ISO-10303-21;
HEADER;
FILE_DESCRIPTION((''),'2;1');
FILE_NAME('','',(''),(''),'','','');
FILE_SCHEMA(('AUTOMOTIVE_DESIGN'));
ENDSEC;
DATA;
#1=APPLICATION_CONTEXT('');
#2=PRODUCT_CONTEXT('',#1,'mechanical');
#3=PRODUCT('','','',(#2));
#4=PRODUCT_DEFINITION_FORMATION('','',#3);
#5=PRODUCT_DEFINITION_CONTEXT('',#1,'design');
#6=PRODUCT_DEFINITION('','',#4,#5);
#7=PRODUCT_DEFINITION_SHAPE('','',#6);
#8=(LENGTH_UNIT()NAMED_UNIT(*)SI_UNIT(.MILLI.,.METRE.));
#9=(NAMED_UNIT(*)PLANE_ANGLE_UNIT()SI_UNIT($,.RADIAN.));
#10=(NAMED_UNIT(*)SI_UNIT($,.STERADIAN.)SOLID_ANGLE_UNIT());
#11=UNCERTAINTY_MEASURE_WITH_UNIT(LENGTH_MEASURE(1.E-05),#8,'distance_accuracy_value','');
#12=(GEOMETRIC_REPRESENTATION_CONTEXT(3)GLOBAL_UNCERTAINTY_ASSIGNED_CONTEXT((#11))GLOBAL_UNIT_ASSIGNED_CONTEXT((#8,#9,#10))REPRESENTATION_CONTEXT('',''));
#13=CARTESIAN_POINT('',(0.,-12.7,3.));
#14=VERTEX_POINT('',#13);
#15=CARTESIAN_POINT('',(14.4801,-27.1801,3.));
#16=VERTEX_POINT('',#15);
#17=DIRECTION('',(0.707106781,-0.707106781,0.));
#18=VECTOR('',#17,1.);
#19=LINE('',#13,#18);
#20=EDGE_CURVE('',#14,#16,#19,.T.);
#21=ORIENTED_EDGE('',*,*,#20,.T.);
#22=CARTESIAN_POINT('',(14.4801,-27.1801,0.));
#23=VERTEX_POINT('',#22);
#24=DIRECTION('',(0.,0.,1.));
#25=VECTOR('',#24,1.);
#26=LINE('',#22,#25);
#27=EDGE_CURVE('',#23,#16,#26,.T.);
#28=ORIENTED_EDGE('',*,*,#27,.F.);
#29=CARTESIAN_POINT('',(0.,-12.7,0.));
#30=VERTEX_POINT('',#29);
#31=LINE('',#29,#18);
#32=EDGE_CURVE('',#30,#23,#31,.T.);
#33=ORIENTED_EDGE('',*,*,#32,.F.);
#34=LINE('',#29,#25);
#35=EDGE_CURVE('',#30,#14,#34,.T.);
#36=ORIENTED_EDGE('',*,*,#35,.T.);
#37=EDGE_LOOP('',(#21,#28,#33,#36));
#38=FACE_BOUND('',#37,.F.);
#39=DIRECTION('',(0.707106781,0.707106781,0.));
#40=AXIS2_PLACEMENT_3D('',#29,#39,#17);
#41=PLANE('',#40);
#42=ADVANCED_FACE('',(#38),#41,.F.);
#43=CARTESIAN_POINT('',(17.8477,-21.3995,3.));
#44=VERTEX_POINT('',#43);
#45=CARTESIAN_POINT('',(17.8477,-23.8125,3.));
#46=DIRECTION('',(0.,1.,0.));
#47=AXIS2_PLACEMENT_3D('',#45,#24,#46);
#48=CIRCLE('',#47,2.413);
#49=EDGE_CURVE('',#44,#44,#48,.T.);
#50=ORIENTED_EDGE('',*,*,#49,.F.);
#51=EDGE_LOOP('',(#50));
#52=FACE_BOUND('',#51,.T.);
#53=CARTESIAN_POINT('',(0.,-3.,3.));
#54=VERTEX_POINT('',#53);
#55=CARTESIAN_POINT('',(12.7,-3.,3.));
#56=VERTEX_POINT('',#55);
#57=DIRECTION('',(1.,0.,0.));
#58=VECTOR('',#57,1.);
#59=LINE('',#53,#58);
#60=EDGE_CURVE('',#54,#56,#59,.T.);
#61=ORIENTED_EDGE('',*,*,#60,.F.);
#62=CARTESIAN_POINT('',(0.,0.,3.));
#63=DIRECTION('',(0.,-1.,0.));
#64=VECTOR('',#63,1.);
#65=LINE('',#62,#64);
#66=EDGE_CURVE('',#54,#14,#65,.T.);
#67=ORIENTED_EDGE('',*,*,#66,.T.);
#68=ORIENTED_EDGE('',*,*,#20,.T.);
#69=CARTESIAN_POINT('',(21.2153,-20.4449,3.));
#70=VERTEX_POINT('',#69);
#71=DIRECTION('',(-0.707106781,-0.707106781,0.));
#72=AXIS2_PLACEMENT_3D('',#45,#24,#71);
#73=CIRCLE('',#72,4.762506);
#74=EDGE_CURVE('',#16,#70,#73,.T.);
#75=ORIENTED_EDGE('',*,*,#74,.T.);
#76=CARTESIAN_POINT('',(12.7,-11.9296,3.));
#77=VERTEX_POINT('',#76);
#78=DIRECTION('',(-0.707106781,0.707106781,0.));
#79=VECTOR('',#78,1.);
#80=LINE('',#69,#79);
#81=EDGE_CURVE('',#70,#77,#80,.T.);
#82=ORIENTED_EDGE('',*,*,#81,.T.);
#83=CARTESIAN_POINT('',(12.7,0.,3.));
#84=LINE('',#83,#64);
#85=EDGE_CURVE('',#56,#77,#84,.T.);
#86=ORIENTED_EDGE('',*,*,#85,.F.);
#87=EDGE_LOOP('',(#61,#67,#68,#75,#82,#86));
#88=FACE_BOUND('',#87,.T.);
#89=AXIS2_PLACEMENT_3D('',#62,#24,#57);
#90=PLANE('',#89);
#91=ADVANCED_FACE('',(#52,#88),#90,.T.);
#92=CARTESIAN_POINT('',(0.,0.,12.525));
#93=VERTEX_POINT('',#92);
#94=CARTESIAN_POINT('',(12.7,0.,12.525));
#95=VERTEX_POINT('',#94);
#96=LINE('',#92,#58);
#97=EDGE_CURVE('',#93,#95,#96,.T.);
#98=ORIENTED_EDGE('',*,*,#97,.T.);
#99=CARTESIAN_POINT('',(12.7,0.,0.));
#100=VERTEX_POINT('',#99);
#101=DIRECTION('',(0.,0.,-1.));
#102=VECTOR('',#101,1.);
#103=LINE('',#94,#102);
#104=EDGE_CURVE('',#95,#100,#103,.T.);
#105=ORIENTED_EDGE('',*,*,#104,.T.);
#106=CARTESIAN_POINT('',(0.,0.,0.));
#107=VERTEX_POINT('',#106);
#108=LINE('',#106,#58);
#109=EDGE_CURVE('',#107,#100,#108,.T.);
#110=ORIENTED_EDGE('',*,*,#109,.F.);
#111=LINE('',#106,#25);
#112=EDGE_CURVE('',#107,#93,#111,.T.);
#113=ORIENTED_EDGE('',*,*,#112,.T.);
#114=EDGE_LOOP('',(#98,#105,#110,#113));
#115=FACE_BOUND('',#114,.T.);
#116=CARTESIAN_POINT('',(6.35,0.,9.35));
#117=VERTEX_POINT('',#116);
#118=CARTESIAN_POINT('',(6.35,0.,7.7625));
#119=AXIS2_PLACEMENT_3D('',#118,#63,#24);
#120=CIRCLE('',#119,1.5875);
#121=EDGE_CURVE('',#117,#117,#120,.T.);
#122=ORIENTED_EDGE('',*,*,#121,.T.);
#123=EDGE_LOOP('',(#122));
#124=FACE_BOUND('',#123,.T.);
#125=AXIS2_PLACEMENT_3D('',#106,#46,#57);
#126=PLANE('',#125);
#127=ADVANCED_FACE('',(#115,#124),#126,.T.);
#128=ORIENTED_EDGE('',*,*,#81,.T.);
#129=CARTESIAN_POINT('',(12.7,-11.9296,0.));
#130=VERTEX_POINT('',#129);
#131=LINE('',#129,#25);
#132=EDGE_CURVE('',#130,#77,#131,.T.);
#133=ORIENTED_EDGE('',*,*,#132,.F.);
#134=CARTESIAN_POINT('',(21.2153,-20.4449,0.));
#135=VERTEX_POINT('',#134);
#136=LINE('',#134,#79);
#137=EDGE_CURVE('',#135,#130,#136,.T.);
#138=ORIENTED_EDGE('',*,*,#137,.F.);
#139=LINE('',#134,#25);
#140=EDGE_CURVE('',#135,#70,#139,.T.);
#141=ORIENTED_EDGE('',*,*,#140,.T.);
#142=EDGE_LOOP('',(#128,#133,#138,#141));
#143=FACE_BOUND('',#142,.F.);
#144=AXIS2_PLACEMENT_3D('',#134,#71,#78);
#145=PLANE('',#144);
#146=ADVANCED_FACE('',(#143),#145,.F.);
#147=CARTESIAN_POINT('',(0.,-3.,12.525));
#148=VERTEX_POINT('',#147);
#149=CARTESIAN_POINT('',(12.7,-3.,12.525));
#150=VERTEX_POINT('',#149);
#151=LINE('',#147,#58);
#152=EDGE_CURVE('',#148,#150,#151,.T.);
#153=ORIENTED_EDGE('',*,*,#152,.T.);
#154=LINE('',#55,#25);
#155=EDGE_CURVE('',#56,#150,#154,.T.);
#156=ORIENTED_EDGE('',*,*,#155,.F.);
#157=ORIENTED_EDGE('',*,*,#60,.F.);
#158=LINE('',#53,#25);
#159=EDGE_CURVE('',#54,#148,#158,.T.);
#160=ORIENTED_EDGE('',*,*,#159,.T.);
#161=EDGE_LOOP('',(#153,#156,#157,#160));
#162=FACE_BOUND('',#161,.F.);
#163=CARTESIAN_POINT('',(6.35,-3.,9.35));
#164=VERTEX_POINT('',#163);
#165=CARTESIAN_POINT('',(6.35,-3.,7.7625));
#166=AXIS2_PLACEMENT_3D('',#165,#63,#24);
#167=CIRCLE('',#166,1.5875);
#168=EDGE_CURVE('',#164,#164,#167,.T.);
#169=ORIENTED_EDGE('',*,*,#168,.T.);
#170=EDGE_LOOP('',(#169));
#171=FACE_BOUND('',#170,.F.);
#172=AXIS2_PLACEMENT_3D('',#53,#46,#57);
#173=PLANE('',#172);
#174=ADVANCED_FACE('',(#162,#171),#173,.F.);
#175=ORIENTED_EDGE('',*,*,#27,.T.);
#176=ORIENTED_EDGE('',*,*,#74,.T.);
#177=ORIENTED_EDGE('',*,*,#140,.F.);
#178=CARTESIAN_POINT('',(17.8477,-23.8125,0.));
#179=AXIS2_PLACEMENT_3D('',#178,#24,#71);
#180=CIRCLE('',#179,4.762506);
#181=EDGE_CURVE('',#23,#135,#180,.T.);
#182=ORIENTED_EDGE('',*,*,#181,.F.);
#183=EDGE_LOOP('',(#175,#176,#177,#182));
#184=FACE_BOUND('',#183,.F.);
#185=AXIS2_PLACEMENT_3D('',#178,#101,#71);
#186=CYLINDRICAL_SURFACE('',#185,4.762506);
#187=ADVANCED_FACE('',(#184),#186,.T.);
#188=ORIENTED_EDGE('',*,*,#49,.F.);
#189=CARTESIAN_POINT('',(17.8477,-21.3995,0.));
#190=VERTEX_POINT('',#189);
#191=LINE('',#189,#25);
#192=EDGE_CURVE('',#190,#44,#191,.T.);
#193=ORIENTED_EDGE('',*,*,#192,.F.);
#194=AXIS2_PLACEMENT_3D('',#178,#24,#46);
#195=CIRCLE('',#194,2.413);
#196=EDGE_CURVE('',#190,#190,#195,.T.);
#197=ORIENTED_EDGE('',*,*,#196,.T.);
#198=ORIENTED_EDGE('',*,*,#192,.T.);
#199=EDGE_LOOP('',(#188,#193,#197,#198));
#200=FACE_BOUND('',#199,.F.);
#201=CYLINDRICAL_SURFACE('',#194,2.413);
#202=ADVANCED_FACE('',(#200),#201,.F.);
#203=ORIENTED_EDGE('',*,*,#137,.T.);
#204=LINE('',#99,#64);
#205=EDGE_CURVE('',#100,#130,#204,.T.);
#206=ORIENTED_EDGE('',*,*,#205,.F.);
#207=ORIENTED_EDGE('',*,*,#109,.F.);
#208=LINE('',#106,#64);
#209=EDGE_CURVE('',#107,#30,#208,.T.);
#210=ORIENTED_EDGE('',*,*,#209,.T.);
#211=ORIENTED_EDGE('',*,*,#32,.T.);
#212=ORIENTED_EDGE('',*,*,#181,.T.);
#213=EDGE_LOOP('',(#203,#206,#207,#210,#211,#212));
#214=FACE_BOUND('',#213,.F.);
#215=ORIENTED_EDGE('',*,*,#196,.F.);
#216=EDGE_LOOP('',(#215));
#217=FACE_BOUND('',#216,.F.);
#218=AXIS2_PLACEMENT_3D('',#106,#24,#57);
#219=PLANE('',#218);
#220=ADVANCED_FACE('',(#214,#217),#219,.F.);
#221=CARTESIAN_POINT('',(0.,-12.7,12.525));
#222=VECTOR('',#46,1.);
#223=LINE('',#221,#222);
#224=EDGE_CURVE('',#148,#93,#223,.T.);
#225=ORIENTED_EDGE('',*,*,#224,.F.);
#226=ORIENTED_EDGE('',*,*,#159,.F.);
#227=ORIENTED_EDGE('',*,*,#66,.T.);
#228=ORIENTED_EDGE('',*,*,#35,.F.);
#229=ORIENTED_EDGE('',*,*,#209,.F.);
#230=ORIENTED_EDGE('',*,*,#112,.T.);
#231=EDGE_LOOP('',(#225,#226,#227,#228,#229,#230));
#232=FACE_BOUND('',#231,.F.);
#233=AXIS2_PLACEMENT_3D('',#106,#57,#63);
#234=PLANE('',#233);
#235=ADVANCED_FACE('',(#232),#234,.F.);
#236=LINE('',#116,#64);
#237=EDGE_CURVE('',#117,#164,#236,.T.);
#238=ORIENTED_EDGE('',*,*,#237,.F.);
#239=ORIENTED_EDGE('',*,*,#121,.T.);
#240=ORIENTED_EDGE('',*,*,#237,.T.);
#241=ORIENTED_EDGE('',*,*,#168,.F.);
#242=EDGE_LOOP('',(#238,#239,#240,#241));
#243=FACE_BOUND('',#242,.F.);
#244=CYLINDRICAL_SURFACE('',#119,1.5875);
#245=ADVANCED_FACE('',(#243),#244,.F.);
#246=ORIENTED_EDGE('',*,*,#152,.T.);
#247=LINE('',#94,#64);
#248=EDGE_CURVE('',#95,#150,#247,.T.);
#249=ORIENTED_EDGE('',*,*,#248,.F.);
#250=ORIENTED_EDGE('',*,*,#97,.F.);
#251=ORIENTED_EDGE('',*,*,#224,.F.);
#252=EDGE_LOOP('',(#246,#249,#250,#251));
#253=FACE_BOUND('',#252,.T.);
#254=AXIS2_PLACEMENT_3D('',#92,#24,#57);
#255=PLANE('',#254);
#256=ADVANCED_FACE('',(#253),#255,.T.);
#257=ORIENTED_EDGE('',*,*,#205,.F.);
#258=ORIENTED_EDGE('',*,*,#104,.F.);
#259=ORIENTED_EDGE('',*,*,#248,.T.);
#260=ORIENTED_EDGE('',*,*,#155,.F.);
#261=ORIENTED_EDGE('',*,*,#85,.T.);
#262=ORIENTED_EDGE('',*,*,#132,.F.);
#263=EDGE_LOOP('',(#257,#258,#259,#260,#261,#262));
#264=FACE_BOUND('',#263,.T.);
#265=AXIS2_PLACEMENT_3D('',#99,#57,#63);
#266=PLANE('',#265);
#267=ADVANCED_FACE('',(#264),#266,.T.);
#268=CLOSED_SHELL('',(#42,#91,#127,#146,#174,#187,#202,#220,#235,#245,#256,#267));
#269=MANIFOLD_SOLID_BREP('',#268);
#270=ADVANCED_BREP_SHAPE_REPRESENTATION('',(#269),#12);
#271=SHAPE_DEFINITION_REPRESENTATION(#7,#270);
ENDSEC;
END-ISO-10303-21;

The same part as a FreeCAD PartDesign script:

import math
import FreeCAD as App
import Part
import Sketcher
from FreeCAD import Vector
Q = App.Units.Quantity

doc = App.newDocument("Part")
params = doc.addObject("Spreadsheet::Sheet", "Params")
for row, (alias, value) in enumerate([
    ("sketch1_width", "0.5 in"),
    ("sketch1_radius", "0.1875 in"),
    ("pad1_length", "0.1181102 in"),
    ("sketch2_width", "0.5 in"),
    ("pad2_length", "0.375 in"),
    ("sketch3_diameter", "0.125 in"),
    ("hole_diameter", "0.125 in"),
    ("sketch4_diameter", "0.19 in"),
    ("hole2_diameter", "0.19 in"),
], start=1):
    params.set(f"A{row}", alias)
    params.set(f"B{row}", "=" + value)
    params.setAlias(f"B{row}", alias)

body = doc.addObject("PartDesign::Body", "Body")

# Sketch on XY plane
sketch1 = body.newObject("Sketcher::SketchObject", "Sketch")
sketch1.AttachmentSupport = (doc.getObject("XY_Plane"), [""])
sketch1.MapMode = "FlatFace"
sketch1.addGeometry([
    Part.LineSegment(Vector(12.7, 0, 0), Vector(0, 0, 0)),  # 0
    Part.LineSegment(Vector(0, 0, 0), Vector(0, -12.7, 0)),  # 1
    Part.LineSegment(Vector(0, -12.7, 0), Vector(14.5, -27.2, 0)),  # 2
    Part.ArcOfCircle(Part.Circle(Vector(17.8, -23.8, 0), Vector(0, 0, 1), 4.8), math.radians(-135), math.radians(45)),  # 3
    Part.LineSegment(Vector(21.2, -20.4, 0), Vector(12.7, -11.9, 0)),  # 4
    Part.LineSegment(Vector(12.7, -11.9, 0), Vector(12.7, 0, 0)),  # 5
], False)
sketch1.addConstraint([
    Sketcher.Constraint("Coincident", 0, 2, 1, 1),
    Sketcher.Constraint("Coincident", 1, 2, 2, 1),
    Sketcher.Constraint("Tangent", 2, 2, 3, 1),
    Sketcher.Constraint("Tangent", 3, 2, 4, 1),
    Sketcher.Constraint("Coincident", 4, 2, 5, 1),
    Sketcher.Constraint("Coincident", 5, 2, 0, 1),
    Sketcher.Constraint("Horizontal", 0),
    Sketcher.Constraint("Vertical", 1),
    Sketcher.Constraint("Vertical", 5),
    Sketcher.Constraint("Coincident", 0, 2, -1, 1),
    Sketcher.Constraint("Parallel", 2, 4),
    Sketcher.Constraint("Equal", 0, 1),
    Sketcher.Constraint("DistanceX", 0, 2, 0, 1, Q("0.5 in")),
    Sketcher.Constraint("Angle", 2, Q("-45 deg")),
    Sketcher.Constraint("Radius", 3, Q("0.1875 in")),
    Sketcher.Constraint("DistanceY", 3, 3, -1, 1, Q("0.9375 in")),
])
sketch1.setExpression("Constraints[12]", "Params.sketch1_width")
sketch1.setExpression("Constraints[14]", "Params.sketch1_radius")
pad1 = body.newObject("PartDesign::Pad", "Pad")
pad1.Profile = sketch1
pad1.setExpression("Length", "Params.pad1_length")

# Sketch on XY plane
sketch2 = body.newObject("Sketcher::SketchObject", "Sketch001")
sketch2.AttachmentSupport = (doc.getObject("XY_Plane"), [""])
sketch2.MapMode = "FlatFace"
sketch2.AttachmentOffset = App.Placement(Vector(0, 0, 0.1181102 * 25.4), App.Rotation())
sketch2.addGeometry([
    Part.LineSegment(Vector(12.7, -3, 0), Vector(12.7, 0, 0)),
    Part.LineSegment(Vector(12.7, 0, 0), Vector(0, 0, 0)),
    Part.LineSegment(Vector(0, 0, 0), Vector(0, -3, 0)),
    Part.LineSegment(Vector(0, -3, 0), Vector(12.7, -3, 0)),
], False)
sketch2.addConstraint([
    Sketcher.Constraint("Coincident", 0, 2, 1, 1),
    Sketcher.Constraint("Coincident", 1, 2, 2, 1),
    Sketcher.Constraint("Coincident", 2, 2, 3, 1),
    Sketcher.Constraint("Coincident", 3, 2, 0, 1),
    Sketcher.Constraint("Vertical", 0),
    Sketcher.Constraint("Horizontal", 1),
    Sketcher.Constraint("Vertical", 2),
    Sketcher.Constraint("Horizontal", 3),
    Sketcher.Constraint("Coincident", 1, 2, -1, 1),
    Sketcher.Constraint("DistanceX", 1, 2, 1, 1, Q("0.5 in")),
    Sketcher.Constraint("DistanceY", 0, 1, 0, 2, Q("0.1181 in")),
])
sketch2.setExpression("Constraints[9]", "Params.sketch2_width")
pad2 = body.newObject("PartDesign::Pad", "Pad001")
pad2.Profile = sketch2
pad2.setExpression("Length", "Params.pad2_length")

# Sketch on XZ plane
sketch3 = body.newObject("Sketcher::SketchObject", "Sketch002")
sketch3.AttachmentSupport = (doc.getObject("XZ_Plane"), [""])
sketch3.MapMode = "FlatFace"
sketch3.addGeometry(Part.Circle(Vector(6.3, 7.8, 0), Vector(0, 0, 1), 1.6), False)
sketch3.addConstraint([
    Sketcher.Constraint("Diameter", 0, Q("0.125 in")),
    Sketcher.Constraint("DistanceX", -1, 1, 0, 3, Q("0.25 in")),
    Sketcher.Constraint("DistanceY", -1, 1, 0, 3, Q("0.3056 in")),
])
sketch3.setExpression("Constraints[0]", "Params.sketch3_diameter")
doc.recompute()
hole = body.newObject("PartDesign::Hole", "Hole")
hole.Profile = sketch3
hole.ThreadType = "None"
hole.setExpression("Diameter", "Params.hole_diameter")
hole.DepthType = "ThroughAll"
hole.Reversed = True

# Sketch on XY plane
sketch4 = body.newObject("Sketcher::SketchObject", "Sketch003")
sketch4.AttachmentSupport = (doc.getObject("XY_Plane"), [""])
sketch4.MapMode = "FlatFace"
sketch4.addGeometry(Part.Circle(Vector(17.8, -23.8, 0), Vector(0, 0, 1), 2.4), False)
sketch4.addConstraint([
    Sketcher.Constraint("Diameter", 0, Q("0.19 in")),
    Sketcher.Constraint("DistanceY", 0, 3, -1, 1, Q("0.9375 in")),
    Sketcher.Constraint("DistanceX", -1, 1, 0, 3, 17.8477),
])
sketch4.setExpression("Constraints[0]", "Params.sketch4_diameter")
doc.recompute()
hole2 = body.newObject("PartDesign::Hole", "Hole001")
hole2.Profile = sketch4
hole2.ThreadType = "None"
hole2.setExpression("Diameter", "Params.hole2_diameter")
hole2.DepthType = "ThroughAll"
hole2.Reversed = True

doc.recompute()
